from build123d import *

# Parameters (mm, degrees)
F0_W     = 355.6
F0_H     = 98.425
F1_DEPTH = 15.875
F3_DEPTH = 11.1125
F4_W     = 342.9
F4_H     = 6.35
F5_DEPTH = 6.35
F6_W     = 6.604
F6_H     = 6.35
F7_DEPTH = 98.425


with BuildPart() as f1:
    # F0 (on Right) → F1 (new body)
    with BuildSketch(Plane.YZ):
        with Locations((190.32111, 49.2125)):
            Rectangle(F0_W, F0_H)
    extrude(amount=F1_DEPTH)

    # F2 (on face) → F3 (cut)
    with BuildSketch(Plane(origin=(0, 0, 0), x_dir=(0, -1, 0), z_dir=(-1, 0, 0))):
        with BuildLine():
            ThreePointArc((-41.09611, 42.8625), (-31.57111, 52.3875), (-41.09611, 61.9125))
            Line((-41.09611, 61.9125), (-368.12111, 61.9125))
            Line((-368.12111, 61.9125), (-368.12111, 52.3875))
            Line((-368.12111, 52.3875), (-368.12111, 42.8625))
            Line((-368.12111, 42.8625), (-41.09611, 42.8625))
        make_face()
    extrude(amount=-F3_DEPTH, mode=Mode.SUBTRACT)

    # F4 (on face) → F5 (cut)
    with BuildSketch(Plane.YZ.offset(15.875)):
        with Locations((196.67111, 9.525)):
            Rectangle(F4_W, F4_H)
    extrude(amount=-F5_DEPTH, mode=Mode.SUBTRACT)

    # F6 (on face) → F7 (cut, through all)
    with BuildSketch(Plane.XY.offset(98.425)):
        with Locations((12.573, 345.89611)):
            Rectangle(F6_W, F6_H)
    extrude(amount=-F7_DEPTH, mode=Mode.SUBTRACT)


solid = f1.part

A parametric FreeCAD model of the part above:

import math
import FreeCAD as App
import Part
import Sketcher
from FreeCAD import Vector
Q = App.Units.Quantity


def add_polygon(sketch, points):
    """Adds a closed chain of lines whose ends are joined by coincident constraints."""
    first, n = sketch.GeometryCount, len(points)
    for a, b in zip(points, points[1:] + points[:1]):
        sketch.addGeometry(Part.LineSegment(App.Vector(*a, 0), App.Vector(*b, 0)), False)
    for i in range(n):
        sketch.addConstraint(Sketcher.Constraint("Coincident", first + i, 2, first + (i + 1) % n, 1))

doc = App.newDocument("Part")
body = doc.addObject("PartDesign::Body", "Body")

# Sketch on YZ plane
sketch1 = body.newObject("Sketcher::SketchObject", "Sketch")
sketch1.AttachmentSupport = (doc.getObject("YZ_Plane"), [""])
sketch1.MapMode = "FlatFace"
add_polygon(sketch1, [(13, 98), (13, 0), (368, 0), (368, 98)])  # lines 0-3
sketch1.addConstraint([
    Sketcher.Constraint("Vertical", 0),
    Sketcher.Constraint("Horizontal", 1),
    Sketcher.Constraint("Vertical", 2),
    Sketcher.Constraint("Horizontal", 3),
    Sketcher.Constraint("PointOnObject", 0, 2, -1),
    Sketcher.Constraint("DistanceX", 1, 1, 1, 2, Q("14 in")),
    Sketcher.Constraint("DistanceY", 0, 2, 0, 1, Q("3.875 in")),
    Sketcher.Constraint("DistanceX", -1, 1, 0, 2, 12.52111),
])
pad1 = body.newObject("PartDesign::Pad", "Pad")
pad1.Profile = sketch1
pad1.Length = Q("0.625 in")

# Sketch on YZ plane
sketch2 = body.newObject("Sketcher::SketchObject", "Sketch001")
sketch2.AttachmentSupport = (doc.getObject("YZ_Plane"), [""])
sketch2.MapMode = "FlatFace"
sketch2.addGeometry([
    Part.ArcOfCircle(Part.Circle(Vector(41, 52, 0), Vector(0, 0, 1), 10), math.radians(90), math.radians(270)),
    Part.LineSegment(Vector(41, 62, 0), Vector(368, 62, 0)),
    Part.LineSegment(Vector(368, 62, 0), Vector(368, 43, 0)),
    Part.LineSegment(Vector(368, 43, 0), Vector(41, 43, 0)),
], False)
sketch2.addConstraint([
    Sketcher.Constraint("Tangent", 0, 1, 1, 1),
    Sketcher.Constraint("Coincident", 1, 2, 2, 1),
    Sketcher.Constraint("Coincident", 2, 2, 3, 1),
    Sketcher.Constraint("Tangent", 3, 2, 0, 2),
    Sketcher.Constraint("Horizontal", 1),
    Sketcher.Constraint("Vertical", 2),
    Sketcher.Constraint("Horizontal", 3),
    Sketcher.Constraint("Radius", 0, Q("0.375 in")),
    Sketcher.Constraint("DistanceX", 1, 1, 1, 2, Q("12.875 in")),
    Sketcher.Constraint("DistanceY", -1, 1, 0, 3, Q("2.0625 in")),
    Sketcher.Constraint("DistanceX", -1, 1, 0, 3, 41.09611),
])
pocket1 = body.newObject("PartDesign::Pocket", "Pocket")
pocket1.Profile = sketch2
pocket1.Length = Q("0.4375 in")
pocket1.Reversed = True

# Sketch on YZ plane
sketch3 = body.newObject("Sketcher::SketchObject", "Sketch002")
sketch3.AttachmentSupport = (doc.getObject("YZ_Plane"), [""])
sketch3.MapMode = "FlatFace"
sketch3.AttachmentOffset = App.Placement(Vector(0, 0, 0.625 * 25.4), App.Rotation())
add_polygon(sketch3, [(25, 13), (25, 6), (368, 6), (368, 13)])  # lines 0-3
sketch3.addConstraint([
    Sketcher.Constraint("Vertical", 0),
    Sketcher.Constraint("Horizontal", 1),
    Sketcher.Constraint("Vertical", 2),
    Sketcher.Constraint("Horizontal", 3),
    Sketcher.Constraint("DistanceX", 1, 1, 1, 2, Q("13.5 in")),
    Sketcher.Constraint("DistanceY", 0, 2, 0, 1, Q("0.25 in")),
    Sketcher.Constraint("DistanceY", -1, 1, 2, 2, Q("0.5 in")),
    Sketcher.Constraint("DistanceX", -1, 1, 0, 2, 25.22111),
])
pocket2 = body.newObject("PartDesign::Pocket", "Pocket001")
pocket2.Profile = sketch3
pocket2.Length = Q("0.25 in")

# Sketch on XY plane
sketch4 = body.newObject("Sketcher::SketchObject", "Sketch003")
sketch4.AttachmentSupport = (doc.getObject("XY_Plane"), [""])
sketch4.MapMode = "FlatFace"
sketch4.AttachmentOffset = App.Placement(Vector(0, 0, 3.875 * 25.4), App.Rotation())
add_polygon(sketch4, [(9, 349), (9, 343), (16, 343), (16, 349)])  # lines 0-3
sketch4.addConstraint([
    Sketcher.Constraint("Vertical", 0),
    Sketcher.Constraint("Horizontal", 1),
    Sketcher.Constraint("Vertical", 2),
    Sketcher.Constraint("Horizontal", 3),
    Sketcher.Constraint("DistanceX", 1, 1, 1, 2, Q("0.26 in")),
    Sketcher.Constraint("DistanceY", 0, 2, 0, 1, Q("0.25 in")),
    Sketcher.Constraint("DistanceX", -1, 1, 0, 2, Q("0.365 in")),
    Sketcher.Constraint("DistanceY", -1, 1, 0, 2, 342.72111),
])
pocket3 = body.newObject("PartDesign::Pocket", "Pocket002")
pocket3.Profile = sketch4
pocket3.Type = "ThroughAll"

doc.recompute()
